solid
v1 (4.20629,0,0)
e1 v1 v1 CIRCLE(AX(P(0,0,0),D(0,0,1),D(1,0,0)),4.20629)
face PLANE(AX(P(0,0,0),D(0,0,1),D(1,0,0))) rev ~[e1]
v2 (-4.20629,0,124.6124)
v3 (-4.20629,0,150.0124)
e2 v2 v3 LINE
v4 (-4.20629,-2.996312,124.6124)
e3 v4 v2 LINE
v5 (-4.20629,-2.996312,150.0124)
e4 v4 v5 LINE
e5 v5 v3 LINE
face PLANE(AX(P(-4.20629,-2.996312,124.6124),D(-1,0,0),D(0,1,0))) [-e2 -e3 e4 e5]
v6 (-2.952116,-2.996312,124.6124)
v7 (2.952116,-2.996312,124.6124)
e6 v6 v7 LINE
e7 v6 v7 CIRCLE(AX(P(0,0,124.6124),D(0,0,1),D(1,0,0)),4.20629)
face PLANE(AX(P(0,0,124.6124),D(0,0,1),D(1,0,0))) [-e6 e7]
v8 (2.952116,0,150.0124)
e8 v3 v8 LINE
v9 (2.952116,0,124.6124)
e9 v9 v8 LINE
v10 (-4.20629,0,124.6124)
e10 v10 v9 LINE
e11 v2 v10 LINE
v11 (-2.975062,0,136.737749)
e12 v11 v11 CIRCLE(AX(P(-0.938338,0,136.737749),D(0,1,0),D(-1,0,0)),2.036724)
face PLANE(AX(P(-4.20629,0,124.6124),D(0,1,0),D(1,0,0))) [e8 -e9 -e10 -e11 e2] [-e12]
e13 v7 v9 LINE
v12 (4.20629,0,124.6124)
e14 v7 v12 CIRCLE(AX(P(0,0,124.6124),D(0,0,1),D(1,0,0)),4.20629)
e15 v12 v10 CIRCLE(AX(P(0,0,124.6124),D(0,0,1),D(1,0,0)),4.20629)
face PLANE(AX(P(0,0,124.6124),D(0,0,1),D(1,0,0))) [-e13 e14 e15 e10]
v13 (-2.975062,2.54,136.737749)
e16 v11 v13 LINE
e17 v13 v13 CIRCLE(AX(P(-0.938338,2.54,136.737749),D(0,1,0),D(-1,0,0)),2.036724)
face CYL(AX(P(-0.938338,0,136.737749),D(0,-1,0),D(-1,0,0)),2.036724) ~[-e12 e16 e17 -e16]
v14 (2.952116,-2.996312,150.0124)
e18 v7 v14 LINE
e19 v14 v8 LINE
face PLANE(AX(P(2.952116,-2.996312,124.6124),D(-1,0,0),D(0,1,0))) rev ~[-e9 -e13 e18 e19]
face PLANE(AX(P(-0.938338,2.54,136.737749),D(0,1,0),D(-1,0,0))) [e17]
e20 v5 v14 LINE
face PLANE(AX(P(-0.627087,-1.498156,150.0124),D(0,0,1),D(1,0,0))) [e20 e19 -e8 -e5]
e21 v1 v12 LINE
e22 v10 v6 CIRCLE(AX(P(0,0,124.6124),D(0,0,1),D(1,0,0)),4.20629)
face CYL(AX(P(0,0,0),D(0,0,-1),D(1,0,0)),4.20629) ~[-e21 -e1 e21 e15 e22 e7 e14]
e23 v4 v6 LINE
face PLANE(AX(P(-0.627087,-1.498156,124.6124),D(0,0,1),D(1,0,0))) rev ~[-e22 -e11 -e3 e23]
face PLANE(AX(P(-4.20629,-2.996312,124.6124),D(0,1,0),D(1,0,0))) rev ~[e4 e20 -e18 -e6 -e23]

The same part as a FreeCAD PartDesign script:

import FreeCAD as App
import Part
import Sketcher
Q = App.Units.Quantity


def add_polygon(sketch, points):
    """Adds a closed chain of lines whose ends are joined by coincident constraints."""
    first, n = sketch.GeometryCount, len(points)
    for a, b in zip(points, points[1:] + points[:1]):
        sketch.addGeometry(Part.LineSegment(App.Vector(*a, 0), App.Vector(*b, 0)), False)
    for i in range(n):
        sketch.addConstraint(Sketcher.Constraint("Coincident", first + i, 2, first + (i + 1) % n, 1))

doc = App.newDocument("Part")
body = doc.addObject("PartDesign::Body", "Body")

# Sketch on XY plane
sketch1 = doc.addObject("Sketcher::SketchObject", "Sketch")
body.addObject(sketch1)
sketch1.AttachmentSupport = (doc.XY_Plane, [""])
sketch1.MapMode = "FlatFace"
sketch1.addGeometry(Part.Circle(App.Vector(0, 0, 0), App.Vector(0, 0, 1), 4.2), False)
sketch1.addConstraint([
    Sketcher.Constraint("Coincident", 0, 3, -1, 1),
    Sketcher.Constraint("Diameter", 0, 8.41258),
])
pad1 = doc.addObject("PartDesign::Pad", "Pad")
body.addObject(pad1)
pad1.Profile = sketch1
pad1.Length = Q("4.906 in")

# Sketch on XY plane
sketch2 = doc.addObject("Sketcher::SketchObject", "Sketch001")
body.addObject(sketch2)
sketch2.AttachmentSupport = (doc.XY_Plane, [""])
sketch2.MapMode = "FlatFace"
sketch2.AttachmentOffset = App.Placement(App.Vector(0, 0, 4.906 * 25.4), App.Rotation())
add_polygon(sketch2, [(-4.2, 0), (-4.2, -3), (3, -3), (3, 0)])  # lines 0-3
sketch2.addConstraint([
    Sketcher.Constraint("Vertical", 0),
    Sketcher.Constraint("Horizontal", 1),
    Sketcher.Constraint("Vertical", 2),
    Sketcher.Constraint("Horizontal", 3),
    Sketcher.Constraint("PointOnObject", 2, 2, -1),
    Sketcher.Constraint("DistanceX", 1, 1, 1, 2, 7.158407),
    Sketcher.Constraint("DistanceY", 0, 2, 0, 1, 2.996312),
    Sketcher.Constraint("DistanceX", 0, 2, -1, 1, 4.20629),
])
pad2 = doc.addObject("PartDesign::Pad", "Pad001")
body.addObject(pad2)
pad2.Profile = sketch2
pad2.Length = Q("1 in")

# Sketch on XZ plane
sketch3 = doc.addObject("Sketcher::SketchObject", "Sketch002")
body.addObject(sketch3)
sketch3.AttachmentSupport = (doc.XZ_Plane, [""])
sketch3.MapMode = "FlatFace"
sketch3.addGeometry(Part.Circle(App.Vector(-0.9, 136.7, 0), App.Vector(0, 0, 1), 2), False)
sketch3.addConstraint([
    Sketcher.Constraint("Diameter", 0, 4.073448),
    Sketcher.Constraint("DistanceX", 0, 3, -1, 1, 0.938338),
    Sketcher.Constraint("DistanceY", -1, 1, 0, 3, 136.737749),
])
pad3 = doc.addObject("PartDesign::Pad", "Pad002")
body.addObject(pad3)
pad3.Profile = sketch3
pad3.Length = Q("0.1 in")
pad3.Reversed = True

doc.recompute()
